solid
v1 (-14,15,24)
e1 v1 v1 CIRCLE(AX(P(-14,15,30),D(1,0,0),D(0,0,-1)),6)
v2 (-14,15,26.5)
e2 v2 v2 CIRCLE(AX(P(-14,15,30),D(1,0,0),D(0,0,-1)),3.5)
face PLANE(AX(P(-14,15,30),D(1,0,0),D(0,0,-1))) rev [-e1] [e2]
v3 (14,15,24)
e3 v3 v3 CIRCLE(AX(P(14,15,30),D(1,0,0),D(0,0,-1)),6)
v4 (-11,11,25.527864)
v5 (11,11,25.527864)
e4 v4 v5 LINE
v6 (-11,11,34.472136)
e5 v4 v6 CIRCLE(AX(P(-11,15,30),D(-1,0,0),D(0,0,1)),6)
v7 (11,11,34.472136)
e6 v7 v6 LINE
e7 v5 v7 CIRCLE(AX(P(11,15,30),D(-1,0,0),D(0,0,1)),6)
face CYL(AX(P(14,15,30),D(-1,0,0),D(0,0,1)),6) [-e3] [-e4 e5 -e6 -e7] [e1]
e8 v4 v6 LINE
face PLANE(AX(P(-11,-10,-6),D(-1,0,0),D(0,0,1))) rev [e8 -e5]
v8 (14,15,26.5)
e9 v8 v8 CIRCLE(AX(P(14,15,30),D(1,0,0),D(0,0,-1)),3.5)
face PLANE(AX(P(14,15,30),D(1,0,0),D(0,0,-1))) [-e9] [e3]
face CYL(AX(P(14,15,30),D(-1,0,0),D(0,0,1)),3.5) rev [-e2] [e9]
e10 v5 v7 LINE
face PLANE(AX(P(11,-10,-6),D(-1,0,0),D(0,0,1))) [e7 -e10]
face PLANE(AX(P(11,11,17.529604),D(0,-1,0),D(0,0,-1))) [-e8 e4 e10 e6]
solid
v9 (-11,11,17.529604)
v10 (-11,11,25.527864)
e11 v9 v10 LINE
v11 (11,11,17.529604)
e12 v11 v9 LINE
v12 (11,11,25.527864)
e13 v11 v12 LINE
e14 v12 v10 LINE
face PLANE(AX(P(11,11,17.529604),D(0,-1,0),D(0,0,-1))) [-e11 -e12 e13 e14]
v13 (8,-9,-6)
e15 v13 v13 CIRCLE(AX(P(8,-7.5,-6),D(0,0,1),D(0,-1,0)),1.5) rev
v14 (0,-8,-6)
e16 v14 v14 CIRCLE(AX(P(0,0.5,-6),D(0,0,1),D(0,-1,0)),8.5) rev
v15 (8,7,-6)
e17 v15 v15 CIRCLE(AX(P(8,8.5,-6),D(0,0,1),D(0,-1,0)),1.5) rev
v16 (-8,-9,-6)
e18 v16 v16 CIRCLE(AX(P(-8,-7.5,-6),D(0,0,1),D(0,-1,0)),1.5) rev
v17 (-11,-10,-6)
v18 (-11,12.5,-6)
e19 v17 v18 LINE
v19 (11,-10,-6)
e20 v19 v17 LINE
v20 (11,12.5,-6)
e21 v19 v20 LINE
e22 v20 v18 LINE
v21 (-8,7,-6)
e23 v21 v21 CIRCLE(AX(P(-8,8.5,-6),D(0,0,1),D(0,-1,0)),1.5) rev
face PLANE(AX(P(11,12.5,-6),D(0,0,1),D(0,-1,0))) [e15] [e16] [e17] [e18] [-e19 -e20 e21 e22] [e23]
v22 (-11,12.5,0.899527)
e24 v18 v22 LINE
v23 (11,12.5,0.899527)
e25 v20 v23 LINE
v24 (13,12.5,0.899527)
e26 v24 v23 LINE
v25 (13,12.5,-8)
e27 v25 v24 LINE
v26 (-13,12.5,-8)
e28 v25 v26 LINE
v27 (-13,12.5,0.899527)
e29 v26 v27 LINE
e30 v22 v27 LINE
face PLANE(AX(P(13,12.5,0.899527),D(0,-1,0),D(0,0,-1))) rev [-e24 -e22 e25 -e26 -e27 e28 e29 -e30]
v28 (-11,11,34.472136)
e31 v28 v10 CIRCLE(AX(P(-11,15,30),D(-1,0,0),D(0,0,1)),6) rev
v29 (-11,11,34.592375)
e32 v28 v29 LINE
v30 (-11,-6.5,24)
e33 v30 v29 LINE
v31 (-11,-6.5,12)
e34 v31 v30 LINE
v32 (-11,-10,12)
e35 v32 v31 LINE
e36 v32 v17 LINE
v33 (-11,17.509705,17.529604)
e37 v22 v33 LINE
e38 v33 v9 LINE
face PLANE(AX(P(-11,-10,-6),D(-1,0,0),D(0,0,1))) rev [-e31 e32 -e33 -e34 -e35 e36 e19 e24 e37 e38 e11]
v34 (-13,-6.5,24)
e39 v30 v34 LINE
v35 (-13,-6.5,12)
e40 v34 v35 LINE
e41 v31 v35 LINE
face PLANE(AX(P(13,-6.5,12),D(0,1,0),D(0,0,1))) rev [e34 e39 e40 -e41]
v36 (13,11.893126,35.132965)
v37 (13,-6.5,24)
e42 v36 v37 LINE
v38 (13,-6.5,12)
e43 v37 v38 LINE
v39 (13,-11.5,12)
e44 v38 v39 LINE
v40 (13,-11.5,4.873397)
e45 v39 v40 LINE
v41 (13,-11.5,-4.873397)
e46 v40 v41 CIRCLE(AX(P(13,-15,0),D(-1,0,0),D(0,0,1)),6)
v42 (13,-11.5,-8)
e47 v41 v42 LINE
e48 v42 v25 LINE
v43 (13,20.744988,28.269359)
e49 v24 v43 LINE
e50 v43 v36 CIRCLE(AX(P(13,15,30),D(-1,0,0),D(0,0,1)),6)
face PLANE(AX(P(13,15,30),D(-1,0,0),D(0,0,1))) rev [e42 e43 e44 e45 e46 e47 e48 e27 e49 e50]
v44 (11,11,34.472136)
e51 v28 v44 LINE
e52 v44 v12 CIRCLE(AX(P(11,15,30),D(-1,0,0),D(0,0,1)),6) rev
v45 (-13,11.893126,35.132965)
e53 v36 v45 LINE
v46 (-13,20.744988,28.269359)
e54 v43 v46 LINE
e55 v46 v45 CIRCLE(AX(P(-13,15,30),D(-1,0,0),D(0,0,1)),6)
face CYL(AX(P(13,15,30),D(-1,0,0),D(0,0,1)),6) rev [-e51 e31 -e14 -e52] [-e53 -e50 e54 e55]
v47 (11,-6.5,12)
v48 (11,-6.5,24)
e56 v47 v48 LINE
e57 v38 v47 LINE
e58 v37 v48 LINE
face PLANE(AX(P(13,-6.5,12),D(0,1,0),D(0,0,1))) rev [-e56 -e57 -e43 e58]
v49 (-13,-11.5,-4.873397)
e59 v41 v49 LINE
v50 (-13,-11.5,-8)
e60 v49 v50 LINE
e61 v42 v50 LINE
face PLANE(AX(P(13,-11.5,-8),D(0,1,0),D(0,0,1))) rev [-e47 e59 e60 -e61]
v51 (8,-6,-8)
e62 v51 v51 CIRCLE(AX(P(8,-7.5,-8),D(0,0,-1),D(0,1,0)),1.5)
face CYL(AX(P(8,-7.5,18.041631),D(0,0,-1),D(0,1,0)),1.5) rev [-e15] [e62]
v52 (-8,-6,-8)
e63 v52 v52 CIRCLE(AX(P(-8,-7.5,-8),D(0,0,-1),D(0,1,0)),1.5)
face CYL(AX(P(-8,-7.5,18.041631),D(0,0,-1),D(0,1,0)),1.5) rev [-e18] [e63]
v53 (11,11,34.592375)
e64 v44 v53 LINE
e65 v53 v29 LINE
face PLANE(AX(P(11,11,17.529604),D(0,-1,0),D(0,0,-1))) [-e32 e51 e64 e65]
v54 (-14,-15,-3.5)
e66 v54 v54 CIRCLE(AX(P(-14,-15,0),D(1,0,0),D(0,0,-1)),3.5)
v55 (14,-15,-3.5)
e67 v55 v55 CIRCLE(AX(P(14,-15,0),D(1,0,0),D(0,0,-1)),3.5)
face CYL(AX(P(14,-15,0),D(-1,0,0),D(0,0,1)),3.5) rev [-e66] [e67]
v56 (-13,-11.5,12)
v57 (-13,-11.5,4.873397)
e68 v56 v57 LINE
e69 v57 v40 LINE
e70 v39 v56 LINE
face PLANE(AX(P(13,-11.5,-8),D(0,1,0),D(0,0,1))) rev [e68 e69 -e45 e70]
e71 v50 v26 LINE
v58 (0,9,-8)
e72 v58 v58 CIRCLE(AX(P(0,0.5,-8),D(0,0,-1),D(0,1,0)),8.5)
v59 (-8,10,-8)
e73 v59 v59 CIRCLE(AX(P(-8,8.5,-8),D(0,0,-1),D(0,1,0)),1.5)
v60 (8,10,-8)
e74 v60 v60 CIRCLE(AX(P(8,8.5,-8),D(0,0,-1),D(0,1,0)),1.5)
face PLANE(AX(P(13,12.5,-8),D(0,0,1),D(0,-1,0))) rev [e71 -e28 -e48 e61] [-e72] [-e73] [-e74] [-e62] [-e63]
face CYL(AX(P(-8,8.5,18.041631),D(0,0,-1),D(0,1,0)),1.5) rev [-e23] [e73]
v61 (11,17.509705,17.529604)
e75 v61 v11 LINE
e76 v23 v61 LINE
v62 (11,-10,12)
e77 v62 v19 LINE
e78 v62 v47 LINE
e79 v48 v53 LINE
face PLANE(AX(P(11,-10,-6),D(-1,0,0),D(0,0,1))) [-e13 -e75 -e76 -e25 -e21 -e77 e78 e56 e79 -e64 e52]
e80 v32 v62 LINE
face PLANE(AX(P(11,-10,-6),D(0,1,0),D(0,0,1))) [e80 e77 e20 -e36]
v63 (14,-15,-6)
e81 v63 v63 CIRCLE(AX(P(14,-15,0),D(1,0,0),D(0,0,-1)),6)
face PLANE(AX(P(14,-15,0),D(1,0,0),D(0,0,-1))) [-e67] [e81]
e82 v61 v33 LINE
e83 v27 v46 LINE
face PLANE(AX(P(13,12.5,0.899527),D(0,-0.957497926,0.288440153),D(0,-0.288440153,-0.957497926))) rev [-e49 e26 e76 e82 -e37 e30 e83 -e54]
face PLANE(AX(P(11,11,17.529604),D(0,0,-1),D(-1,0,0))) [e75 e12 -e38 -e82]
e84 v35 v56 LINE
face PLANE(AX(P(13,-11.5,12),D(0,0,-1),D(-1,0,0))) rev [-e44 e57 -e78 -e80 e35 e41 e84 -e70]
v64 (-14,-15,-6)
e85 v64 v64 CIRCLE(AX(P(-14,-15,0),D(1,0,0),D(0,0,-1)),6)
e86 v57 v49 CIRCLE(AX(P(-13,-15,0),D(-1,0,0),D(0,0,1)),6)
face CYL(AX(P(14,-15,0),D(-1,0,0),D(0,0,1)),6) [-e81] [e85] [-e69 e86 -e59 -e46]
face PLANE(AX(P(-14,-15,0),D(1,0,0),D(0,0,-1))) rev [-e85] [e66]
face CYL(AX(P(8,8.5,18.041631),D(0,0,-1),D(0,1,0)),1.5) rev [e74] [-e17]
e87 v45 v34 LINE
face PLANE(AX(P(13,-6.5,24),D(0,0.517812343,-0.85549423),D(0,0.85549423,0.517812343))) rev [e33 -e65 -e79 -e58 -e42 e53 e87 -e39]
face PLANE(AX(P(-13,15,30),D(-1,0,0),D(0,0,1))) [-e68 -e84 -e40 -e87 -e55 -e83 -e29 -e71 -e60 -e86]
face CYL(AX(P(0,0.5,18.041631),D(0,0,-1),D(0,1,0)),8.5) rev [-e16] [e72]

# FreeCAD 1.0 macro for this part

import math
import FreeCAD as App
import Part
import Sketcher

doc = App.newDocument("Part")
body = doc.addObject("PartDesign::Body", "Body")

sketch1 = doc.addObject("Sketcher::SketchObject", "Sketch")
body.addObject(sketch1)
sketch1.AttachmentSupport = (doc.YZ_Plane, [""])
sketch1.MapMode = "FlatFace"
sketch1.addGeometry([
    Part.Circle(App.Vector(15, 30, 0), App.Vector(0, 0, 1), 6),
    Part.Circle(App.Vector(15, 30, 0), App.Vector(0, 0, 1), 3.5),
], False)
sketch1.addConstraint([
    Sketcher.Constraint("Coincident", 1, 3, 0, 3),
    Sketcher.Constraint("Diameter", 0, 12.0),
    Sketcher.Constraint("Diameter", 1, 7.0),
    Sketcher.Constraint("DistanceX", -1, 1, 0, 3, 15.0),
    Sketcher.Constraint("DistanceY", -1, 1, 0, 3, 30.0),
])
pad1 = doc.addObject("PartDesign::Pad", "Pad")
body.addObject(pad1)
pad1.Profile = sketch1
pad1.Length = 28
pad1.Midplane = True
body2 = doc.addObject("PartDesign::Body", "Body001")

sketch2 = doc.addObject("Sketcher::SketchObject", "Sketch001")
body2.addObject(sketch2)
sketch2.AttachmentSupport = (doc.getObject("YZ_Plane001"), [""])
sketch2.MapMode = "FlatFace"
sketch2.addGeometry([
    Part.Circle(App.Vector(-15, 0, 0), App.Vector(0, 0, 1), 6),
    Part.Circle(App.Vector(-15, 0, 0), App.Vector(0, 0, 1), 3.5),
], False)
sketch2.addConstraint([
    Sketcher.Constraint("Coincident", 1, 3, 0, 3),
    Sketcher.Constraint("PointOnObject", 0, 3, -1),
    Sketcher.Constraint("Diameter", 0, 12.0),
    Sketcher.Constraint("Diameter", 1, 7.0),
    Sketcher.Constraint("DistanceX", 0, 3, -1, 1, 15.0),
])
pad2 = doc.addObject("PartDesign::Pad", "Pad001")
body2.addObject(pad2)
pad2.Profile = sketch2
pad2.Length = 28
pad2.Midplane = True

sketch3 = doc.addObject("Sketcher::SketchObject", "Sketch002")
body2.addObject(sketch3)
sketch3.AttachmentSupport = (doc.getObject("YZ_Plane001"), [""])
sketch3.MapMode = "FlatFace"
sketch3.addGeometry([
    Part.LineSegment(App.Vector(-12, -8, 0), App.Vector(12, -8, 0)),
    Part.LineSegment(App.Vector(12, -8, 0), App.Vector(12, 1, 0)),
    Part.LineSegment(App.Vector(12, 1, 0), App.Vector(21, 28, 0)),
    Part.ArcOfCircle(Part.Circle(App.Vector(15, 30, 0), App.Vector(0, 0, 1), 6), math.radians(121), math.radians(343)),
    Part.LineSegment(App.Vector(12, 35, 0), App.Vector(-6, 24, 0)),
    Part.LineSegment(App.Vector(-6, 24, 0), App.Vector(-6, 12, 0)),
    Part.LineSegment(App.Vector(-6, 12, 0), App.Vector(-12, 12, 0)),
    Part.LineSegment(App.Vector(-12, 12, 0), App.Vector(-12, -8, 0)),
], False)
sketch3.addConstraint([
    Sketcher.Constraint("Coincident", 0, 2, 1, 1),
    Sketcher.Constraint("Coincident", 1, 2, 2, 1),
    Sketcher.Constraint("Tangent", 2, 2, 3, 2),
    Sketcher.Constraint("Tangent", 3, 1, 4, 1),
    Sketcher.Constraint("Coincident", 4, 2, 5, 1),
    Sketcher.Constraint("Coincident", 5, 2, 6, 1),
    Sketcher.Constraint("Coincident", 6, 2, 7, 1),
    Sketcher.Constraint("Coincident", 7, 2, 0, 1),
    Sketcher.Constraint("Horizontal", 0),
    Sketcher.Constraint("Vertical", 1),
    Sketcher.Constraint("Vertical", 5),
    Sketcher.Constraint("Horizontal", 6),
    Sketcher.Constraint("Vertical", 7),
    Sketcher.Constraint("Radius", 3, 6.0),
    Sketcher.Constraint("DistanceX", 0, 1, 0, 2, 24.0),
    Sketcher.Constraint("DistanceX", 6, 2, 6, 1, 5.0),
    Sketcher.Constraint("DistanceY", 5, 2, 5, 1, 12.0),
    Sketcher.Constraint("DistanceY", 7, 2, 7, 1, 20.0),
    Sketcher.Constraint("DistanceX", -1, 1, 3, 3, 15.0),
    Sketcher.Constraint("DistanceY", -1, 1, 3, 3, 30.0),
    Sketcher.Constraint("DistanceY", 0, 2, -1, 1, 8.0),
    Sketcher.Constraint("Distance", 4, 21.5),
    Sketcher.Constraint("DistanceY", 1, 1, 1, 2, 8.899527),
])
pad3 = doc.addObject("PartDesign::Pad", "Pad002")
body2.addObject(pad3)
pad3.Profile = sketch3
pad3.Length = 26
pad3.Midplane = True
body3 = doc.addObject("PartDesign::Body", "Body002")

sketch4 = doc.addObject("Sketcher::SketchObject", "Sketch003")
body3.addObject(sketch4)
sketch4.AttachmentSupport = (doc.getObject("YZ_Plane002"), [""])
sketch4.MapMode = "FlatFace"
sketch4.addGeometry([
    Part.LineSegment(App.Vector(12, -6, 0), App.Vector(12, 1, 0)),
    Part.LineSegment(App.Vector(12, 1, 0), App.Vector(18, 18, 0)),
    Part.LineSegment(App.Vector(18, 18, 0), App.Vector(11, 18, 0)),
    Part.LineSegment(App.Vector(11, 18, 0), App.Vector(11, 36, 0)),
    Part.LineSegment(App.Vector(11, 36, 0), App.Vector(-10, 36, 0)),
    Part.LineSegment(App.Vector(-10, 36, 0), App.Vector(-10, -6, 0)),
    Part.LineSegment(App.Vector(-10, -6, 0), App.Vector(12, -6, 0)),
], False)
sketch4.addConstraint([
    Sketcher.Constraint("Coincident", 0, 2, 1, 1),
    Sketcher.Constraint("Coincident", 1, 2, 2, 1),
    Sketcher.Constraint("Coincident", 2, 2, 3, 1),
    Sketcher.Constraint("Coincident", 3, 2, 4, 1),
    Sketcher.Constraint("Coincident", 4, 2, 5, 1),
    Sketcher.Constraint("Coincident", 5, 2, 6, 1),
    Sketcher.Constraint("Coincident", 6, 2, 0, 1),
    Sketcher.Constraint("Vertical", 0),
    Sketcher.Constraint("Horizontal", 2),
    Sketcher.Constraint("Vertical", 3),
    Sketcher.Constraint("Horizontal", 4),
    Sketcher.Constraint("Vertical", 5),
    Sketcher.Constraint("Horizontal", 6),
    Sketcher.Constraint("DistanceX", 4, 2, 4, 1, 21.0),
    Sketcher.Constraint("DistanceY", 5, 2, 5, 1, 42.0),
    Sketcher.Constraint("DistanceX", 6, 1, 6, 2, 22.5),
    Sketcher.Constraint("DistanceX", -1, 1, 2, 2, 11.0),
    Sketcher.Constraint("DistanceY", -1, 1, 3, 2, 36.0),
    Sketcher.Constraint("DistanceX", 2, 2, 2, 1, 6.509705),
    Sketcher.Constraint("DistanceY", 0, 1, 0, 2, 6.899527),
    Sketcher.Constraint("DistanceY", 3, 1, 3, 2, 18.470396),
])
pad4 = doc.addObject("PartDesign::Pad", "Pad003")
body3.addObject(pad4)
pad4.Profile = sketch4
pad4.Length = 22
pad4.Midplane = True
doc.recompute()

body4 = doc.addObject("PartDesign::Body", "Body003")
body4.BaseFeature = body3
boolean = doc.addObject("PartDesign::Boolean", "Boolean")
body.addObject(boolean)
boolean.Type = "Cut"
boolean.addObjects([body4])
doc.recompute()

boolean2 = doc.addObject("PartDesign::Boolean", "Boolean001")
body2.addObject(boolean2)
boolean2.Type = "Cut"
boolean2.addObjects([body3])

sketch5 = doc.addObject("Sketcher::SketchObject", "Sketch004")
body2.addObject(sketch5)
sketch5.AttachmentSupport = (doc.getObject("XY_Plane001"), [""])
sketch5.MapMode = "FlatFace"
sketch5.AttachmentOffset = App.Placement(App.Vector(0, 0, -8), App.Rotation())
sketch5.addGeometry([
    Part.Circle(App.Vector(0, 0.5, 0), App.Vector(0, 0, 1), 8.5),
    Part.Circle(App.Vector(8, 8.5, 0), App.Vector(0, 0, 1), 1.5),
    Part.Circle(App.Vector(8, -7.5, 0), App.Vector(0, 0, 1), 1.5),
    Part.Circle(App.Vector(-8, 8.5, 0), App.Vector(0, 0, 1), 1.5),
    Part.Circle(App.Vector(-8, -7.5, 0), App.Vector(0, 0, 1), 1.5),
], False)
sketch5.addConstraint([
    Sketcher.Constraint("Equal", 1, 2),
    Sketcher.Constraint("Equal", 2, 3),
    Sketcher.Constraint("Equal", 3, 4),
    Sketcher.Constraint("Symmetric", 1, 3, 3, 3, -2),
    Sketcher.Constraint("Symmetric", 2, 3, 4, 3, -2),
    Sketcher.Constraint("PointOnObject", 0, 3, -2),
    Sketcher.Constraint("Vertical", 1, 3, 2, 3),
    Sketcher.Constraint("Diameter", 0, 17.0),
    Sketcher.Constraint("Diameter", 1, 3.0),
    Sketcher.Constraint("DistanceX", -1, 1, 1, 3, 8.0),
    Sketcher.Constraint("DistanceY", 0, 3, 1, 3, 8.0),
    Sketcher.Constraint("DistanceY", 2, 3, 0, 3, 8.0),
    Sketcher.Constraint("DistanceY", -1, 1, 0, 3, 0.5),
])
pocket1 = doc.addObject("PartDesign::Pocket", "Pocket")
body2.addObject(pocket1)
pocket1.Profile = sketch5
pocket1.Length = 2
pocket1.Reversed = True

doc.recompute()
